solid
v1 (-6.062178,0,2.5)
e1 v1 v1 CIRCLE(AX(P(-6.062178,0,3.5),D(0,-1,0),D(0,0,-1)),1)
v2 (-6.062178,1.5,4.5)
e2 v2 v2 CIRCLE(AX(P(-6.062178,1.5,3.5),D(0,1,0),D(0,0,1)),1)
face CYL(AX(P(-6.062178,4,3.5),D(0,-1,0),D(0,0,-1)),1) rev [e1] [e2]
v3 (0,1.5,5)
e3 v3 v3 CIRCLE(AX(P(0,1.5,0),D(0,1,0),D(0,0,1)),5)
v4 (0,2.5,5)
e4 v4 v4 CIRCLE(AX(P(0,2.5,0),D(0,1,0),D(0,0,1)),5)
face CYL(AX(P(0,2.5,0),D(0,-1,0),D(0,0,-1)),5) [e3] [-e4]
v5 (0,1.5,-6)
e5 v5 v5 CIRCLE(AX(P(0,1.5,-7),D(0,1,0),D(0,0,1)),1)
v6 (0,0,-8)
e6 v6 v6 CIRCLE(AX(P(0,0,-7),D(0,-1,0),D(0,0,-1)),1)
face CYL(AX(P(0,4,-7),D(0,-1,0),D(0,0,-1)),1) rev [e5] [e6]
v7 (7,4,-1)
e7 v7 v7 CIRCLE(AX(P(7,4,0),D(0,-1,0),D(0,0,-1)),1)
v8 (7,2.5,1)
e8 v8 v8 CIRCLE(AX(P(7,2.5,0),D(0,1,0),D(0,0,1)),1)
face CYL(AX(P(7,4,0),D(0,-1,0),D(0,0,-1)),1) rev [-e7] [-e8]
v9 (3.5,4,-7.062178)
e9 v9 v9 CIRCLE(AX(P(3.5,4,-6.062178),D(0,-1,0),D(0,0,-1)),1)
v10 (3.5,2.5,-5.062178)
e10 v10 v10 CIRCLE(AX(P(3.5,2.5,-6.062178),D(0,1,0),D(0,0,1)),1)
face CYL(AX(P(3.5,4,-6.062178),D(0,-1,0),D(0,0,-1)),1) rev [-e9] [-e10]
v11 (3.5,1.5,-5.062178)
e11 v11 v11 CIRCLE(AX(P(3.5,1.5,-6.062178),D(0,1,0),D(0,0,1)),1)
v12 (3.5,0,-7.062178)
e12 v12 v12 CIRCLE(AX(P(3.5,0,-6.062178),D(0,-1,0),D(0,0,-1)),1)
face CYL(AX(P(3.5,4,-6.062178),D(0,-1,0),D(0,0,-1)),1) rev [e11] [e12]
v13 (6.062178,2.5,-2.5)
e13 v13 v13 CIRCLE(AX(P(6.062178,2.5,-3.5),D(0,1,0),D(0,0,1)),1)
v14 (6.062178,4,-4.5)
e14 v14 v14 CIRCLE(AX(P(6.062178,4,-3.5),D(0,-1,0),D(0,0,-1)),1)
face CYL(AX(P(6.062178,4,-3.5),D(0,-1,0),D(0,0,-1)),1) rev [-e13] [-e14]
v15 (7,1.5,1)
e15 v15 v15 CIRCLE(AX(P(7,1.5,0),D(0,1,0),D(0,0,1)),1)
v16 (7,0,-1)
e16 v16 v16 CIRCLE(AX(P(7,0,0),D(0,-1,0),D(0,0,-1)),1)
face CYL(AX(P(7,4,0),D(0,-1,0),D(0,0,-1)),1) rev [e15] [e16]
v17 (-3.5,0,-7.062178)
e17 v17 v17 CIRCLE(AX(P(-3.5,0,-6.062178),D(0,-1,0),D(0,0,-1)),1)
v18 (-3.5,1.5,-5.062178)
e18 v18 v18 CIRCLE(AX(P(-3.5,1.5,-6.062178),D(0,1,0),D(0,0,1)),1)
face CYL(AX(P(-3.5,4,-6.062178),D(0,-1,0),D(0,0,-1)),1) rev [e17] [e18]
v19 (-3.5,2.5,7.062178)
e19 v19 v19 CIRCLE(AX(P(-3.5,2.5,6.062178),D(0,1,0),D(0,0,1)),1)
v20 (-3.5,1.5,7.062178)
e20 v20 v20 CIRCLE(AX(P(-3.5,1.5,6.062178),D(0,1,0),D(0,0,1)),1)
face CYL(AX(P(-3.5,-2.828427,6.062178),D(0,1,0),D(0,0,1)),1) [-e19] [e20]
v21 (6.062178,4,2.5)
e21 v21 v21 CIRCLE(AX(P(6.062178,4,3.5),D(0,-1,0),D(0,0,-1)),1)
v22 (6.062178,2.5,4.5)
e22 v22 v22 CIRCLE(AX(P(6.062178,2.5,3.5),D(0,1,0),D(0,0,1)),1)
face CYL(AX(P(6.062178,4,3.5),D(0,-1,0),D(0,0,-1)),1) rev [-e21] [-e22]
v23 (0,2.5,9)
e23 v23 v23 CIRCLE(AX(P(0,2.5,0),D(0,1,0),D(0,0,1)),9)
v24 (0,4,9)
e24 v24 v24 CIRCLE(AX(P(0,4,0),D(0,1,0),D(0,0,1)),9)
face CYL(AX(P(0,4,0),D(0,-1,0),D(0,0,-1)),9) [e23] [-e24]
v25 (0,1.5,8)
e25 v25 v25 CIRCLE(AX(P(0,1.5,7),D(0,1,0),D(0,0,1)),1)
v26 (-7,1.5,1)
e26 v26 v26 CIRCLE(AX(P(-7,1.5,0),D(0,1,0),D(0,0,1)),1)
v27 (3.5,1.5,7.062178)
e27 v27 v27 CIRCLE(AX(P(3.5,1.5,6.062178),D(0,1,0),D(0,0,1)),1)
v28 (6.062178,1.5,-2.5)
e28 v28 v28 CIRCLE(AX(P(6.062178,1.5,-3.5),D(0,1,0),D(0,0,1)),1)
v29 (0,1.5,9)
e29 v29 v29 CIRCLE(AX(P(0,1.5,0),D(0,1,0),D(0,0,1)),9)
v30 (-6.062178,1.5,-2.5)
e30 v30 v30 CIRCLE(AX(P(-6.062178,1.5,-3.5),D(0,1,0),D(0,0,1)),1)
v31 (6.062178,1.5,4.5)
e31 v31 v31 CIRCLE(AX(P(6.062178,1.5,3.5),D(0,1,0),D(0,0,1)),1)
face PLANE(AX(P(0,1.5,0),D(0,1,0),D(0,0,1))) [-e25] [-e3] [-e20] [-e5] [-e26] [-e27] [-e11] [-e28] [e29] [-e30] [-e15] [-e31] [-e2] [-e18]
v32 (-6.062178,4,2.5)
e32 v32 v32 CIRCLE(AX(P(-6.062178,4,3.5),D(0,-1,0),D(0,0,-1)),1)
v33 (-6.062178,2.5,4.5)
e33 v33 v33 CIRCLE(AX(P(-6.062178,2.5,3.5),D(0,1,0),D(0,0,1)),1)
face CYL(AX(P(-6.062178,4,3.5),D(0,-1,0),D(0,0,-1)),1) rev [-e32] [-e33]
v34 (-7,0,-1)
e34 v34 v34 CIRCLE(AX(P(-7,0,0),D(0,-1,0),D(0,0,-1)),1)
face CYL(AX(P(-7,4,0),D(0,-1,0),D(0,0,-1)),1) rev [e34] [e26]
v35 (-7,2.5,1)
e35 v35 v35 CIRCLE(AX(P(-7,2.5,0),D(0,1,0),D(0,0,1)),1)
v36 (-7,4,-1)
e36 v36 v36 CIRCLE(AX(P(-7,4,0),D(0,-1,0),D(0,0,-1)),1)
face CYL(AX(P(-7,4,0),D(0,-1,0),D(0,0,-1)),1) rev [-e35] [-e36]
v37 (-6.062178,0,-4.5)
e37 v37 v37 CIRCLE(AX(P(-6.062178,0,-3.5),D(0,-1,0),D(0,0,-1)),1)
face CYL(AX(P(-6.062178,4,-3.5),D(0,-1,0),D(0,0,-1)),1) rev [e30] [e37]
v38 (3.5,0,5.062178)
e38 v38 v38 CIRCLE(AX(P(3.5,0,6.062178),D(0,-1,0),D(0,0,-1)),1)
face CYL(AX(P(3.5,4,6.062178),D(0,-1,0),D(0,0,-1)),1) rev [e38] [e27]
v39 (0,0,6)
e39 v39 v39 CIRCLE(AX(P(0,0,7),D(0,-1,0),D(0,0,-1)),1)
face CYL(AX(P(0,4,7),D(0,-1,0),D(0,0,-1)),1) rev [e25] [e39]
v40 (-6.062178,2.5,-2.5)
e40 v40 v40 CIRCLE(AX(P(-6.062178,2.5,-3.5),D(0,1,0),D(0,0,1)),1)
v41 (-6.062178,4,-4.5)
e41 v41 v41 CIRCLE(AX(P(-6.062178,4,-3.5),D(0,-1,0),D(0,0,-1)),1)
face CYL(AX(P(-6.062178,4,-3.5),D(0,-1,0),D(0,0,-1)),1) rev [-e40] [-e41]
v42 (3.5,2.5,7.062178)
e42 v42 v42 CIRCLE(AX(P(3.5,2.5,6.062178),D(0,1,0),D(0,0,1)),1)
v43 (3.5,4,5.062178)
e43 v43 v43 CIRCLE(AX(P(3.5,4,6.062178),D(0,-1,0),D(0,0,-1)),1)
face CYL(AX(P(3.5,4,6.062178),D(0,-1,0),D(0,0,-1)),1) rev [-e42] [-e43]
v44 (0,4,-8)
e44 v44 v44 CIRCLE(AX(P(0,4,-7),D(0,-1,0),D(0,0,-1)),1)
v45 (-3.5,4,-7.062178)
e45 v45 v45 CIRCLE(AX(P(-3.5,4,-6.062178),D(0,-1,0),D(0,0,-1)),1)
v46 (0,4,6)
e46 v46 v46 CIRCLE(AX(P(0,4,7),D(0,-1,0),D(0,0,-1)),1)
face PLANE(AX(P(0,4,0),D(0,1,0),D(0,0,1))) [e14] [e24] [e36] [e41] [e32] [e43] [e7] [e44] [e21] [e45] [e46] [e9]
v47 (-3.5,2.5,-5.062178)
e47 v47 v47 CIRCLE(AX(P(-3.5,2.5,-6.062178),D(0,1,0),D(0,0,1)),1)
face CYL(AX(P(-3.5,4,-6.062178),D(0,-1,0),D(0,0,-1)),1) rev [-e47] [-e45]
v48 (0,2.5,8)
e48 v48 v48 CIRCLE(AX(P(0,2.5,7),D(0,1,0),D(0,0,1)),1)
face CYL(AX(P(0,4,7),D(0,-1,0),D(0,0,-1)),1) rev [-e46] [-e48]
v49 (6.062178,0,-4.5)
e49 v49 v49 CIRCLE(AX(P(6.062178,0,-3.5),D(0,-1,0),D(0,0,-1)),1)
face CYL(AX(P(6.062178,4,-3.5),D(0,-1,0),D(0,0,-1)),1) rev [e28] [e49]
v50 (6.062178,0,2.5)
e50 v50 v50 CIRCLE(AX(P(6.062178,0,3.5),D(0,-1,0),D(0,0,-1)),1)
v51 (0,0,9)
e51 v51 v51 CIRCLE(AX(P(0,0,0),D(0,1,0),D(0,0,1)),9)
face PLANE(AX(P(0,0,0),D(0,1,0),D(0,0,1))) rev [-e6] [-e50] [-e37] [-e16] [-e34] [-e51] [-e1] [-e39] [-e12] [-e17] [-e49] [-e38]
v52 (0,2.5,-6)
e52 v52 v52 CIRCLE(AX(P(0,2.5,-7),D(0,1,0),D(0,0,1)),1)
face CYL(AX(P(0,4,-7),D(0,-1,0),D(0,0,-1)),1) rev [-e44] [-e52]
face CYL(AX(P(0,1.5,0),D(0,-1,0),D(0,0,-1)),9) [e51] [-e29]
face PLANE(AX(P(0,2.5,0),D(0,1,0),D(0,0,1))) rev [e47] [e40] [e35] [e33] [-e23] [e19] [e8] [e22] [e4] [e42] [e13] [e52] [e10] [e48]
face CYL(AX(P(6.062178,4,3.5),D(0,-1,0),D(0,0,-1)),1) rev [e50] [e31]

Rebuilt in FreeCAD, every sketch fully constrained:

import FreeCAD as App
import Part
import Sketcher

doc = App.newDocument("Part")
body = doc.addObject("PartDesign::Body", "Body")

sketch1 = body.newObject("Sketcher::SketchObject", "Sketch")
sketch1.AttachmentSupport = (doc.getObject("XZ_Plane"), [""])
sketch1.MapMode = "FlatFace"
sketch1.addGeometry(Part.Circle(App.Vector(0, 0, 0), App.Vector(0, 0, 1), 9), False)
sketch1.addConstraint([
    Sketcher.Constraint("Coincident", 0, 3, -1, 1),
    Sketcher.Constraint("Diameter", 0, 18.0),
])
pad1 = body.newObject("PartDesign::Pad", "Pad")
pad1.Profile = sketch1
pad1.Length = 1.5
pad1.Reversed = True

sketch2 = body.newObject("Sketcher::SketchObject", "Sketch001")
sketch2.AttachmentSupport = (doc.getObject("XZ_Plane"), [""])
sketch2.MapMode = "FlatFace"
sketch2.AttachmentOffset = App.Placement(App.Vector(0, 0, -1.5), App.Rotation())
sketch2.addGeometry(Part.Circle(App.Vector(0, 0, 0), App.Vector(0, 0, 1), 5), False)
sketch2.addConstraint([
    Sketcher.Constraint("Coincident", 0, 3, -1, 1),
    Sketcher.Constraint("Diameter", 0, 10.0),
])
pad2 = body.newObject("PartDesign::Pad", "Pad001")
pad2.Profile = sketch2
pad2.Length = 1
pad2.Reversed = True

sketch3 = body.newObject("Sketcher::SketchObject", "Sketch002")
sketch3.AttachmentSupport = (doc.getObject("XZ_Plane"), [""])
sketch3.MapMode = "FlatFace"
sketch3.AttachmentOffset = App.Placement(App.Vector(0, 0, -2.5), App.Rotation())
sketch3.addGeometry(Part.Circle(App.Vector(0, 0, 0), App.Vector(0, 0, 1), 9), False)
sketch3.addConstraint([
    Sketcher.Constraint("Coincident", 0, 3, -1, 1),
    Sketcher.Constraint("Diameter", 0, 18.0),
])
pad3 = body.newObject("PartDesign::Pad", "Pad002")
pad3.Profile = sketch3
pad3.Length = 1.5
pad3.Reversed = True

sketch4 = body.newObject("Sketcher::SketchObject", "Sketch003")
sketch4.AttachmentSupport = (doc.getObject("XZ_Plane"), [""])
sketch4.MapMode = "FlatFace"
sketch4.addGeometry([
    Part.Circle(App.Vector(0, 7, 0), App.Vector(0, 0, 1), 1),
    Part.Circle(App.Vector(3.5, 6.062178, 0), App.Vector(0, 0, 1), 1),
    Part.Circle(App.Vector(6.062178, 3.5, 0), App.Vector(0, 0, 1), 1),
    Part.Circle(App.Vector(7, 0, 0), App.Vector(0, 0, 1), 1),
    Part.Circle(App.Vector(6.062178, -3.5, 0), App.Vector(0, 0, 1), 1),
    Part.Circle(App.Vector(3.5, -6.062178, 0), App.Vector(0, 0, 1), 1),
    Part.Circle(App.Vector(0, -7, 0), App.Vector(0, 0, 1), 1),
    Part.Circle(App.Vector(-3.5, -6.062178, 0), App.Vector(0, 0, 1), 1),
    Part.Circle(App.Vector(-6.062178, -3.5, 0), App.Vector(0, 0, 1), 1),
    Part.Circle(App.Vector(-7, 0, 0), App.Vector(0, 0, 1), 1),
    Part.Circle(App.Vector(-6.062178, 3.5, 0), App.Vector(0, 0, 1), 1),
    Part.Circle(App.Vector(-3.5, 6.062178, 0), App.Vector(0, 0, 1), 1),
], False)
sketch4.addConstraint([
    Sketcher.Constraint("Equal", 0, 1),
    Sketcher.Constraint("Equal", 1, 2),
    Sketcher.Constraint("Equal", 2, 3),
    Sketcher.Constraint("Equal", 3, 4),
    Sketcher.Constraint("Equal", 4, 5),
    Sketcher.Constraint("Equal", 5, 6),
    Sketcher.Constraint("Equal", 6, 7),
    Sketcher.Constraint("Equal", 7, 8),
    Sketcher.Constraint("Equal", 8, 9),
    Sketcher.Constraint("Equal", 9, 10),
    Sketcher.Constraint("Equal", 10, 11),
    Sketcher.Constraint("Symmetric", 0, 3, 6, 3, -1, 1),
    Sketcher.Constraint("Symmetric", 1, 3, 7, 3, -1, 1),
    Sketcher.Constraint("Symmetric", 2, 3, 8, 3, -1, 1),
    Sketcher.Constraint("Symmetric", 3, 3, 9, 3, -1, 1),
    Sketcher.Constraint("Symmetric", 4, 3, 10, 3, -1, 1),
    Sketcher.Constraint("Symmetric", 5, 3, 11, 3, -1, 1),
    Sketcher.Constraint("Symmetric", 5, 3, 7, 3, -2),
    Sketcher.Constraint("Symmetric", 4, 3, 8, 3, -2),
    Sketcher.Constraint("PointOnObject", 0, 3, -2),
    Sketcher.Constraint("PointOnObject", 3, 3, -1),
    Sketcher.Constraint("Diameter", 0, 2.0),
    Sketcher.Constraint("DistanceY", -1, 1, 0, 3, 7.0),
    Sketcher.Constraint("DistanceX", -1, 1, 3, 3, 7.0),
    Sketcher.Constraint("DistanceY", 4, 3, 2, 3, 7.0),
    Sketcher.Constraint("DistanceX", 7, 3, 5, 3, 7.0),
    Sketcher.Constraint("DistanceY", -1, 1, 1, 3, 6.062178),
    Sketcher.Constraint("DistanceX", -1, 1, 2, 3, 6.062178),
])
pocket1 = body.newObject("PartDesign::Pocket", "Pocket")
pocket1.Profile = sketch4
pocket1.Type = "ThroughAll"

sketch5 = body.newObject("Sketcher::SketchObject", "Sketch004")
sketch5.AttachmentSupport = (doc.getObject("XZ_Plane"), [""])
sketch5.MapMode = "FlatFace"
sketch5.addGeometry(Part.Circle(App.Vector(-3.5, 6.062178, 0), App.Vector(0, 0, 1), 1), False)
sketch5.addConstraint([
    Sketcher.Constraint("Diameter", 0, 2.0),
    Sketcher.Constraint("DistanceX", 0, 3, -1, 1, 3.5),
    Sketcher.Constraint("DistanceY", -1, 1, 0, 3, 6.062178),
])
pad4 = body.newObject("PartDesign::Pad", "Pad003")
pad4.Profile = sketch5
pad4.Length = 4
pad4.Reversed = True

doc.recompute()
